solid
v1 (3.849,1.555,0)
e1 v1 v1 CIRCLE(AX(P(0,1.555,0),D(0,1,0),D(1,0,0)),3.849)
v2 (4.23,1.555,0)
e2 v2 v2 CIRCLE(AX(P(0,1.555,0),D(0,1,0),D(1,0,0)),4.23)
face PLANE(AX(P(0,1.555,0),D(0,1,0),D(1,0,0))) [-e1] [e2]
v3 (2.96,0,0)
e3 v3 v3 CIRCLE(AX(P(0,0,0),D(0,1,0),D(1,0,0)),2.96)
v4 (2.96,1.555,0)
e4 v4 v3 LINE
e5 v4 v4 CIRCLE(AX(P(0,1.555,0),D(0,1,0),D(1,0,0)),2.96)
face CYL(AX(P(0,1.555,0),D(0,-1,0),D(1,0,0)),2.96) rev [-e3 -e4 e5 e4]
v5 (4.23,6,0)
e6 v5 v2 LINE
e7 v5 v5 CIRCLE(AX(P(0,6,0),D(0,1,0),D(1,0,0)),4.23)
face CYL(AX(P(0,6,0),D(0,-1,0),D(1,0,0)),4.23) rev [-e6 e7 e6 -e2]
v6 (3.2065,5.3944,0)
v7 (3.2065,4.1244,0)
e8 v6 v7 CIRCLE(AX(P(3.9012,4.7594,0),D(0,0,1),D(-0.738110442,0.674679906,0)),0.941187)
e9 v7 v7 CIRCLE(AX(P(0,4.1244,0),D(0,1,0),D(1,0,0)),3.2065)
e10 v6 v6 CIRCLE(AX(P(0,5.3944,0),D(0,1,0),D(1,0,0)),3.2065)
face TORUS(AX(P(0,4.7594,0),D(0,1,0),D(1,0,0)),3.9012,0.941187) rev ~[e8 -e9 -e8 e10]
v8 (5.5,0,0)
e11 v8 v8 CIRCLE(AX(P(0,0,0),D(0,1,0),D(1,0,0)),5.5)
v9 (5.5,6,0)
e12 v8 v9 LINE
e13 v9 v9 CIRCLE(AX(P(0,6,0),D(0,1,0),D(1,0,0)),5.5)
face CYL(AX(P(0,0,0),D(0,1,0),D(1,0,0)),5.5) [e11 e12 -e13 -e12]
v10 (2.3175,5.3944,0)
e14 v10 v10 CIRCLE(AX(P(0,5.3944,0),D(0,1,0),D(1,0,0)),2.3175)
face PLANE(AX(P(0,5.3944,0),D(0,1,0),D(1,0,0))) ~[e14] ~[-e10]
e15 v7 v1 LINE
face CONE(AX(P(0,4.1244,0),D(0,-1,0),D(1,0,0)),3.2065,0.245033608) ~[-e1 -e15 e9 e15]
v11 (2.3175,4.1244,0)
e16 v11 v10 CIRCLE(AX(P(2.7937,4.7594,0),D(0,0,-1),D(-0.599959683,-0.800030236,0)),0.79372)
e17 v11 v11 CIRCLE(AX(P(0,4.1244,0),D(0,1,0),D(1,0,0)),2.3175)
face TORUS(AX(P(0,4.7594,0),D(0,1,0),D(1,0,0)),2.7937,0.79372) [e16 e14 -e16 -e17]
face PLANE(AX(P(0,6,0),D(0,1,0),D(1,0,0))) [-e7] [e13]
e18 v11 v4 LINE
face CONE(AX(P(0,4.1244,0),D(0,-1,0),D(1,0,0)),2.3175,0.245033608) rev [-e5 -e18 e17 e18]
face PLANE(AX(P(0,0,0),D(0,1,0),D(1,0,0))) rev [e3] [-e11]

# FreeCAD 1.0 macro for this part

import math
import FreeCAD as App
import Part
import Sketcher
from FreeCAD import Vector
Q = App.Units.Quantity

doc = App.newDocument("Part")
body = doc.addObject("PartDesign::Body", "Body")

# Sketch on XY plane
sketch1 = body.newObject("Sketcher::SketchObject", "Sketch")
sketch1.AttachmentSupport = (doc.getObject("XY_Plane"), [""])
sketch1.MapMode = "FlatFace"
sketch1.addGeometry([
    Part.LineSegment(Vector(2.96, 1.55, 0), Vector(2.96, 0, 0)),  # 0
    Part.LineSegment(Vector(2.96, 0, 0), Vector(5.5, 0, 0)),  # 1
    Part.LineSegment(Vector(5.5, 0, 0), Vector(5.5, 6, 0)),  # 2
    Part.LineSegment(Vector(5.5, 6, 0), Vector(4.23, 6, 0)),  # 3
    Part.LineSegment(Vector(4.23, 6, 0), Vector(4.23, 1.55, 0)),  # 4
    Part.LineSegment(Vector(4.23, 1.55, 0), Vector(3.85, 1.55, 0)),  # 5
    Part.LineSegment(Vector(3.85, 1.55, 0), Vector(3.21, 4.12, 0)),  # 6
    Part.ArcOfCircle(Part.Circle(Vector(3.9, 4.76, 0), Vector(0, 0, 1), 0.94), math.radians(138), math.radians(222)),  # 7
    Part.LineSegment(Vector(3.21, 5.39, 0), Vector(2.32, 5.39, 0)),  # 8
    Part.ArcOfCircle(Part.Circle(Vector(2.79, 4.76, 0), Vector(0, 0, 1), 0.79), math.radians(127), math.radians(233)),  # 9
    Part.LineSegment(Vector(2.32, 4.12, 0), Vector(2.96, 1.55, 0)),  # 10
], False)
sketch1.addConstraint([
    Sketcher.Constraint("Coincident", 0, 2, 1, 1),
    Sketcher.Constraint("Coincident", 1, 2, 2, 1),
    Sketcher.Constraint("Coincident", 2, 2, 3, 1),
    Sketcher.Constraint("Coincident", 3, 2, 4, 1),
    Sketcher.Constraint("Coincident", 4, 2, 5, 1),
    Sketcher.Constraint("Coincident", 5, 2, 6, 1),
    Sketcher.Constraint("Coincident", 6, 2, 7, 2),
    Sketcher.Constraint("Coincident", 7, 1, 8, 1),
    Sketcher.Constraint("Coincident", 8, 2, 9, 1),
    Sketcher.Constraint("Coincident", 9, 2, 10, 1),
    Sketcher.Constraint("Coincident", 10, 2, 0, 1),
    Sketcher.Constraint("Vertical", 0),
    Sketcher.Constraint("Horizontal", 1),
    Sketcher.Constraint("Vertical", 2),
    Sketcher.Constraint("Horizontal", 3),
    Sketcher.Constraint("Vertical", 4),
    Sketcher.Constraint("Horizontal", 5),
    Sketcher.Constraint("Horizontal", 8),
    Sketcher.Constraint("PointOnObject", 0, 2, -1),
    Sketcher.Constraint("Parallel", 6, 10),
    Sketcher.Constraint("Horizontal", 7, 3, 9, 3),
    Sketcher.Constraint("Horizontal", 6, 2, 9, 2),
    Sketcher.Constraint("Horizontal", 5, 2, 10, 2),
    Sketcher.Constraint("Vertical", 6, 2, 7, 1),
    Sketcher.Constraint("DistanceX", 3, 2, 3, 1, Q("0.05 in")),
    Sketcher.Constraint("DistanceX", 8, 2, 8, 1, Q("0.035 in")),
    Sketcher.Constraint("DistanceY", 4, 2, 4, 1, Q("0.175 in")),
    Sketcher.Constraint("Radius", 7, Q("0.9412 mm")),
    Sketcher.Constraint("DistanceX", 0, 2, 3, 2, Q("0.05 in")),
    Sketcher.Constraint("DistanceY", 6, 2, 7, 1, Q("0.05 in")),
    Sketcher.Constraint("Radius", 9, Q("0.031248 in")),
    Sketcher.Constraint("DistanceY", 2, 1, 2, 2, Q("6 mm")),
    Sketcher.Constraint("DistanceX", -1, 1, 9, 3, Q("0.11 in")),
    Sketcher.Constraint("DistanceX", -1, 1, 1, 2, Q("5.5 mm")),
    Sketcher.Constraint("Angle", 6, Q("104.0394 deg")),
])
revolution = body.newObject("PartDesign::Revolution", "Revolution")
revolution.Profile = sketch1
revolution.ReferenceAxis = (sketch1, ["V_Axis"])
revolution.Angle = 360

doc.recompute()
